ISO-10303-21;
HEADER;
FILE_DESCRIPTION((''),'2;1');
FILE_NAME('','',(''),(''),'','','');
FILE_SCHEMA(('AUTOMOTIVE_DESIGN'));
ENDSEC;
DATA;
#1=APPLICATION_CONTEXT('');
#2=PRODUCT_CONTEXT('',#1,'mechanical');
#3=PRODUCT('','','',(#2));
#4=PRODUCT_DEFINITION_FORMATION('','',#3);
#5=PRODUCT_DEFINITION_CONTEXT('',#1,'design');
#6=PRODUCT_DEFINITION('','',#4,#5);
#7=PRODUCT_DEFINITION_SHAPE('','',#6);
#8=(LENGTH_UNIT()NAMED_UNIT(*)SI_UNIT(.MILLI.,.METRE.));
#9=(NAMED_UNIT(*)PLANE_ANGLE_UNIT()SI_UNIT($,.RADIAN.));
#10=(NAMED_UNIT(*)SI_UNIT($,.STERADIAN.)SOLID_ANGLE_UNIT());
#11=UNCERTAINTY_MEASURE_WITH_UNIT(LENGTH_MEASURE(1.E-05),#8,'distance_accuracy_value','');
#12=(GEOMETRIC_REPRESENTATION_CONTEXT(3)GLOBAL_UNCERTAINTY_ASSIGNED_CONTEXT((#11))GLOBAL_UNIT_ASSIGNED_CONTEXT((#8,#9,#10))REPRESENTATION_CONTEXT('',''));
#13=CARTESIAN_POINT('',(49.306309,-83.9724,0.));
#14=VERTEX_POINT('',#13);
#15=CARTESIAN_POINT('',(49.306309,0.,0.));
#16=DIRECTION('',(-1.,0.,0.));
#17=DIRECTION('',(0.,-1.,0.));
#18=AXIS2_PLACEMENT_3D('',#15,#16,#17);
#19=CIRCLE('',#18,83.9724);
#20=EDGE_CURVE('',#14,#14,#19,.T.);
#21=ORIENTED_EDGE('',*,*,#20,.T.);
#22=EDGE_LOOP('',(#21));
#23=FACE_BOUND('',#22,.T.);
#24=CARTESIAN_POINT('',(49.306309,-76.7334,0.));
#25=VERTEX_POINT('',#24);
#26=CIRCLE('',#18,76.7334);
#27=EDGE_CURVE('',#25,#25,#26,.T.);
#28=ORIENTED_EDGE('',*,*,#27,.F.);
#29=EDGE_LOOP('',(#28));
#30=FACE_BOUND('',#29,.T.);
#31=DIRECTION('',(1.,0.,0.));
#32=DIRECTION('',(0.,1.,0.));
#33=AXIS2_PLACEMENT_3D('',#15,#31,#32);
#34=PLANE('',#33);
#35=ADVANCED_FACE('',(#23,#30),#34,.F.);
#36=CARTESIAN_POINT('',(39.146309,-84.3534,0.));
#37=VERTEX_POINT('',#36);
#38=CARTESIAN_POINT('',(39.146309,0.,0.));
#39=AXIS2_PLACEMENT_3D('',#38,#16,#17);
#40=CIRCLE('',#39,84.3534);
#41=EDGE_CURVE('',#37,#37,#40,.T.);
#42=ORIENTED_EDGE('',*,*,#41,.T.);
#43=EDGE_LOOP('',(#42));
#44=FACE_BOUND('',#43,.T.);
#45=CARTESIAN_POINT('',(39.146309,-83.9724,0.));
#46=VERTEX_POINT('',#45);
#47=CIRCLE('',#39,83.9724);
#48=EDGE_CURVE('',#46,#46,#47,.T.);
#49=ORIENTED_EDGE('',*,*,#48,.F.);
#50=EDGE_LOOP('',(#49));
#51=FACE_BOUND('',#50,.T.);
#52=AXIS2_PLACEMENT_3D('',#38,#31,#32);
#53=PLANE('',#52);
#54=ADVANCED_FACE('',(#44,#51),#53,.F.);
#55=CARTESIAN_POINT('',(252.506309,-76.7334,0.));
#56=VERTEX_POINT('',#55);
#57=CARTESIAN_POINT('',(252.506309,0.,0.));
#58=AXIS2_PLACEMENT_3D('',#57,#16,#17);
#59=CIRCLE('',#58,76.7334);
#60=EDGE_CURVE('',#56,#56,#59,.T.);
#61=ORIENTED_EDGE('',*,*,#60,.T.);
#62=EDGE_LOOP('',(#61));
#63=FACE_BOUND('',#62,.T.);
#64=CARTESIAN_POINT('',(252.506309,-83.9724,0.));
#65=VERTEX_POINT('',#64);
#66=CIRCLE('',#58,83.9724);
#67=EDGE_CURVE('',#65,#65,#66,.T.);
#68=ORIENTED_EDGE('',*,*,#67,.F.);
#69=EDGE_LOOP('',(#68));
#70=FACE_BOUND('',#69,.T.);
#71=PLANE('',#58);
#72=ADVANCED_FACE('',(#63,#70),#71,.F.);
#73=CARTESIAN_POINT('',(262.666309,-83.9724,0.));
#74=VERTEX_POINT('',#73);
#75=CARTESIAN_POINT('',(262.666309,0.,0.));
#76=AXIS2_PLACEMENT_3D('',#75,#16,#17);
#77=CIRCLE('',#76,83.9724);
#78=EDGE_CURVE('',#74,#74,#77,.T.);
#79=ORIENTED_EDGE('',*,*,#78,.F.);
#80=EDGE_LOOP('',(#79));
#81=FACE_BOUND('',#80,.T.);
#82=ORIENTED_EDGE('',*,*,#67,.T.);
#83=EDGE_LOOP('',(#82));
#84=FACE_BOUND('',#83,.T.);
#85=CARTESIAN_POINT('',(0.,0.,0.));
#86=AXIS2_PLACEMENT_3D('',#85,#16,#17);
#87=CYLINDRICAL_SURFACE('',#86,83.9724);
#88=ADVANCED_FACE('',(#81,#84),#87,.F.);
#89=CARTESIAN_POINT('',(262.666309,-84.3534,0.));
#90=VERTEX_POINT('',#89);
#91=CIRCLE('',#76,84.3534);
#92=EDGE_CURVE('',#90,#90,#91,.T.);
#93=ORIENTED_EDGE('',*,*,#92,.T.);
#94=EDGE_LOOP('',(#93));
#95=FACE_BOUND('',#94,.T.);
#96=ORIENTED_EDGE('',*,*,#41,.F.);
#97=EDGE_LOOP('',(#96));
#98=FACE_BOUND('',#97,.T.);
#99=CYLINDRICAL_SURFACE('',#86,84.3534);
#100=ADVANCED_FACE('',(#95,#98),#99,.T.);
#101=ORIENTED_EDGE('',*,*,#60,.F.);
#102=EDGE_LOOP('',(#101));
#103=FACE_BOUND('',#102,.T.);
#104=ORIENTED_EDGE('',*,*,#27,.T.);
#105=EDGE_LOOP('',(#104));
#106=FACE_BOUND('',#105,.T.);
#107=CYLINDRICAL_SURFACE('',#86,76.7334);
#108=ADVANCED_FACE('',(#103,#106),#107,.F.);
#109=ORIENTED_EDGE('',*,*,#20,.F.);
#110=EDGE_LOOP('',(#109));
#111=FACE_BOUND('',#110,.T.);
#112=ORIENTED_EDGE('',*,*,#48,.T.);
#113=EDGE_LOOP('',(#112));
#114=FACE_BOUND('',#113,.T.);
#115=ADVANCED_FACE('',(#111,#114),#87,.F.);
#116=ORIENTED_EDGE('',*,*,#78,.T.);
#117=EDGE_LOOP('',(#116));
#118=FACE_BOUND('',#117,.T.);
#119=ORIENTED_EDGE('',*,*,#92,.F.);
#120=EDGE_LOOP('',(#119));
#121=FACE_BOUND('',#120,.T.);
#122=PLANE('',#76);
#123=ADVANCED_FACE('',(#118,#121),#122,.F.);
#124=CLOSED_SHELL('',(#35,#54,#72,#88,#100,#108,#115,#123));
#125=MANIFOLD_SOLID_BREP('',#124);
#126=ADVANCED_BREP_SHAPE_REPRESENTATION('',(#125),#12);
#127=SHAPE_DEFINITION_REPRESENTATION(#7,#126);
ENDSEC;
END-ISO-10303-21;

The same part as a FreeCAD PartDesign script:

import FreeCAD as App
import Part
import Sketcher

V = App.Vector
Q = App.Units.Quantity

doc = App.newDocument("Part")
body = doc.addObject("PartDesign::Body", "Body")

# Sketch on XY plane
sketch1 = doc.addObject("Sketcher::SketchObject", "Sketch")
body.addObject(sketch1)
sketch1.AttachmentSupport = (doc.XY_Plane, [""])
sketch1.MapMode = "FlatFace"
sketch1.addGeometry([
    Part.LineSegment(V(39.15, 83.97, 0), V(49.31, 83.97, 0)),  # 0
    Part.LineSegment(V(49.31, 83.97, 0), V(49.31, 76.73, 0)),  # 1
    Part.LineSegment(V(49.31, 76.73, 0), V(252.51, 76.73, 0)),  # 2
    Part.LineSegment(V(252.51, 76.73, 0), V(252.51, 83.97, 0)),  # 3
    Part.LineSegment(V(252.51, 83.97, 0), V(262.67, 83.97, 0)),  # 4
    Part.LineSegment(V(262.67, 83.97, 0), V(262.67, 84.35, 0)),  # 5
    Part.LineSegment(V(262.67, 84.35, 0), V(39.15, 84.35, 0)),  # 6
    Part.LineSegment(V(39.15, 84.35, 0), V(39.15, 83.97, 0)),  # 7
], False)
sketch1.addConstraint([
    Sketcher.Constraint("Coincident", 0, 2, 1, 1),
    Sketcher.Constraint("Coincident", 1, 2, 2, 1),
    Sketcher.Constraint("Coincident", 2, 2, 3, 1),
    Sketcher.Constraint("Coincident", 3, 2, 4, 1),
    Sketcher.Constraint("Coincident", 4, 2, 5, 1),
    Sketcher.Constraint("Coincident", 5, 2, 6, 1),
    Sketcher.Constraint("Coincident", 6, 2, 7, 1),
    Sketcher.Constraint("Coincident", 7, 2, 0, 1),
    Sketcher.Constraint("Horizontal", 0),
    Sketcher.Constraint("Vertical", 1),
    Sketcher.Constraint("Horizontal", 2),
    Sketcher.Constraint("Vertical", 3),
    Sketcher.Constraint("Horizontal", 4),
    Sketcher.Constraint("Vertical", 5),
    Sketcher.Constraint("Horizontal", 6),
    Sketcher.Constraint("Vertical", 7),
    Sketcher.Constraint("Horizontal", 0, 2, 3, 2),
    Sketcher.Constraint("Equal", 0, 4),
    Sketcher.Constraint("DistanceX", 2, 1, 2, 2, Q("8 in")),
    Sketcher.Constraint("DistanceX", 0, 1, 0, 2, Q("0.4 in")),
    Sketcher.Constraint("DistanceY", 2, 2, 5, 2, Q("0.3 in")),
    Sketcher.Constraint("DistanceY", 1, 2, 1, 1, Q("0.285 in")),
    Sketcher.Constraint("DistanceY", -1, 1, 0, 2, Q("3.306 in")),
    Sketcher.Constraint("DistanceX", -1, 1, 0, 2, Q("49.306309 mm")),
])
revolution = doc.addObject("PartDesign::Revolution", "Revolution")
body.addObject(revolution)
revolution.Profile = sketch1
revolution.ReferenceAxis = (sketch1, ["H_Axis"])
revolution.Angle = 360

doc.recompute()
